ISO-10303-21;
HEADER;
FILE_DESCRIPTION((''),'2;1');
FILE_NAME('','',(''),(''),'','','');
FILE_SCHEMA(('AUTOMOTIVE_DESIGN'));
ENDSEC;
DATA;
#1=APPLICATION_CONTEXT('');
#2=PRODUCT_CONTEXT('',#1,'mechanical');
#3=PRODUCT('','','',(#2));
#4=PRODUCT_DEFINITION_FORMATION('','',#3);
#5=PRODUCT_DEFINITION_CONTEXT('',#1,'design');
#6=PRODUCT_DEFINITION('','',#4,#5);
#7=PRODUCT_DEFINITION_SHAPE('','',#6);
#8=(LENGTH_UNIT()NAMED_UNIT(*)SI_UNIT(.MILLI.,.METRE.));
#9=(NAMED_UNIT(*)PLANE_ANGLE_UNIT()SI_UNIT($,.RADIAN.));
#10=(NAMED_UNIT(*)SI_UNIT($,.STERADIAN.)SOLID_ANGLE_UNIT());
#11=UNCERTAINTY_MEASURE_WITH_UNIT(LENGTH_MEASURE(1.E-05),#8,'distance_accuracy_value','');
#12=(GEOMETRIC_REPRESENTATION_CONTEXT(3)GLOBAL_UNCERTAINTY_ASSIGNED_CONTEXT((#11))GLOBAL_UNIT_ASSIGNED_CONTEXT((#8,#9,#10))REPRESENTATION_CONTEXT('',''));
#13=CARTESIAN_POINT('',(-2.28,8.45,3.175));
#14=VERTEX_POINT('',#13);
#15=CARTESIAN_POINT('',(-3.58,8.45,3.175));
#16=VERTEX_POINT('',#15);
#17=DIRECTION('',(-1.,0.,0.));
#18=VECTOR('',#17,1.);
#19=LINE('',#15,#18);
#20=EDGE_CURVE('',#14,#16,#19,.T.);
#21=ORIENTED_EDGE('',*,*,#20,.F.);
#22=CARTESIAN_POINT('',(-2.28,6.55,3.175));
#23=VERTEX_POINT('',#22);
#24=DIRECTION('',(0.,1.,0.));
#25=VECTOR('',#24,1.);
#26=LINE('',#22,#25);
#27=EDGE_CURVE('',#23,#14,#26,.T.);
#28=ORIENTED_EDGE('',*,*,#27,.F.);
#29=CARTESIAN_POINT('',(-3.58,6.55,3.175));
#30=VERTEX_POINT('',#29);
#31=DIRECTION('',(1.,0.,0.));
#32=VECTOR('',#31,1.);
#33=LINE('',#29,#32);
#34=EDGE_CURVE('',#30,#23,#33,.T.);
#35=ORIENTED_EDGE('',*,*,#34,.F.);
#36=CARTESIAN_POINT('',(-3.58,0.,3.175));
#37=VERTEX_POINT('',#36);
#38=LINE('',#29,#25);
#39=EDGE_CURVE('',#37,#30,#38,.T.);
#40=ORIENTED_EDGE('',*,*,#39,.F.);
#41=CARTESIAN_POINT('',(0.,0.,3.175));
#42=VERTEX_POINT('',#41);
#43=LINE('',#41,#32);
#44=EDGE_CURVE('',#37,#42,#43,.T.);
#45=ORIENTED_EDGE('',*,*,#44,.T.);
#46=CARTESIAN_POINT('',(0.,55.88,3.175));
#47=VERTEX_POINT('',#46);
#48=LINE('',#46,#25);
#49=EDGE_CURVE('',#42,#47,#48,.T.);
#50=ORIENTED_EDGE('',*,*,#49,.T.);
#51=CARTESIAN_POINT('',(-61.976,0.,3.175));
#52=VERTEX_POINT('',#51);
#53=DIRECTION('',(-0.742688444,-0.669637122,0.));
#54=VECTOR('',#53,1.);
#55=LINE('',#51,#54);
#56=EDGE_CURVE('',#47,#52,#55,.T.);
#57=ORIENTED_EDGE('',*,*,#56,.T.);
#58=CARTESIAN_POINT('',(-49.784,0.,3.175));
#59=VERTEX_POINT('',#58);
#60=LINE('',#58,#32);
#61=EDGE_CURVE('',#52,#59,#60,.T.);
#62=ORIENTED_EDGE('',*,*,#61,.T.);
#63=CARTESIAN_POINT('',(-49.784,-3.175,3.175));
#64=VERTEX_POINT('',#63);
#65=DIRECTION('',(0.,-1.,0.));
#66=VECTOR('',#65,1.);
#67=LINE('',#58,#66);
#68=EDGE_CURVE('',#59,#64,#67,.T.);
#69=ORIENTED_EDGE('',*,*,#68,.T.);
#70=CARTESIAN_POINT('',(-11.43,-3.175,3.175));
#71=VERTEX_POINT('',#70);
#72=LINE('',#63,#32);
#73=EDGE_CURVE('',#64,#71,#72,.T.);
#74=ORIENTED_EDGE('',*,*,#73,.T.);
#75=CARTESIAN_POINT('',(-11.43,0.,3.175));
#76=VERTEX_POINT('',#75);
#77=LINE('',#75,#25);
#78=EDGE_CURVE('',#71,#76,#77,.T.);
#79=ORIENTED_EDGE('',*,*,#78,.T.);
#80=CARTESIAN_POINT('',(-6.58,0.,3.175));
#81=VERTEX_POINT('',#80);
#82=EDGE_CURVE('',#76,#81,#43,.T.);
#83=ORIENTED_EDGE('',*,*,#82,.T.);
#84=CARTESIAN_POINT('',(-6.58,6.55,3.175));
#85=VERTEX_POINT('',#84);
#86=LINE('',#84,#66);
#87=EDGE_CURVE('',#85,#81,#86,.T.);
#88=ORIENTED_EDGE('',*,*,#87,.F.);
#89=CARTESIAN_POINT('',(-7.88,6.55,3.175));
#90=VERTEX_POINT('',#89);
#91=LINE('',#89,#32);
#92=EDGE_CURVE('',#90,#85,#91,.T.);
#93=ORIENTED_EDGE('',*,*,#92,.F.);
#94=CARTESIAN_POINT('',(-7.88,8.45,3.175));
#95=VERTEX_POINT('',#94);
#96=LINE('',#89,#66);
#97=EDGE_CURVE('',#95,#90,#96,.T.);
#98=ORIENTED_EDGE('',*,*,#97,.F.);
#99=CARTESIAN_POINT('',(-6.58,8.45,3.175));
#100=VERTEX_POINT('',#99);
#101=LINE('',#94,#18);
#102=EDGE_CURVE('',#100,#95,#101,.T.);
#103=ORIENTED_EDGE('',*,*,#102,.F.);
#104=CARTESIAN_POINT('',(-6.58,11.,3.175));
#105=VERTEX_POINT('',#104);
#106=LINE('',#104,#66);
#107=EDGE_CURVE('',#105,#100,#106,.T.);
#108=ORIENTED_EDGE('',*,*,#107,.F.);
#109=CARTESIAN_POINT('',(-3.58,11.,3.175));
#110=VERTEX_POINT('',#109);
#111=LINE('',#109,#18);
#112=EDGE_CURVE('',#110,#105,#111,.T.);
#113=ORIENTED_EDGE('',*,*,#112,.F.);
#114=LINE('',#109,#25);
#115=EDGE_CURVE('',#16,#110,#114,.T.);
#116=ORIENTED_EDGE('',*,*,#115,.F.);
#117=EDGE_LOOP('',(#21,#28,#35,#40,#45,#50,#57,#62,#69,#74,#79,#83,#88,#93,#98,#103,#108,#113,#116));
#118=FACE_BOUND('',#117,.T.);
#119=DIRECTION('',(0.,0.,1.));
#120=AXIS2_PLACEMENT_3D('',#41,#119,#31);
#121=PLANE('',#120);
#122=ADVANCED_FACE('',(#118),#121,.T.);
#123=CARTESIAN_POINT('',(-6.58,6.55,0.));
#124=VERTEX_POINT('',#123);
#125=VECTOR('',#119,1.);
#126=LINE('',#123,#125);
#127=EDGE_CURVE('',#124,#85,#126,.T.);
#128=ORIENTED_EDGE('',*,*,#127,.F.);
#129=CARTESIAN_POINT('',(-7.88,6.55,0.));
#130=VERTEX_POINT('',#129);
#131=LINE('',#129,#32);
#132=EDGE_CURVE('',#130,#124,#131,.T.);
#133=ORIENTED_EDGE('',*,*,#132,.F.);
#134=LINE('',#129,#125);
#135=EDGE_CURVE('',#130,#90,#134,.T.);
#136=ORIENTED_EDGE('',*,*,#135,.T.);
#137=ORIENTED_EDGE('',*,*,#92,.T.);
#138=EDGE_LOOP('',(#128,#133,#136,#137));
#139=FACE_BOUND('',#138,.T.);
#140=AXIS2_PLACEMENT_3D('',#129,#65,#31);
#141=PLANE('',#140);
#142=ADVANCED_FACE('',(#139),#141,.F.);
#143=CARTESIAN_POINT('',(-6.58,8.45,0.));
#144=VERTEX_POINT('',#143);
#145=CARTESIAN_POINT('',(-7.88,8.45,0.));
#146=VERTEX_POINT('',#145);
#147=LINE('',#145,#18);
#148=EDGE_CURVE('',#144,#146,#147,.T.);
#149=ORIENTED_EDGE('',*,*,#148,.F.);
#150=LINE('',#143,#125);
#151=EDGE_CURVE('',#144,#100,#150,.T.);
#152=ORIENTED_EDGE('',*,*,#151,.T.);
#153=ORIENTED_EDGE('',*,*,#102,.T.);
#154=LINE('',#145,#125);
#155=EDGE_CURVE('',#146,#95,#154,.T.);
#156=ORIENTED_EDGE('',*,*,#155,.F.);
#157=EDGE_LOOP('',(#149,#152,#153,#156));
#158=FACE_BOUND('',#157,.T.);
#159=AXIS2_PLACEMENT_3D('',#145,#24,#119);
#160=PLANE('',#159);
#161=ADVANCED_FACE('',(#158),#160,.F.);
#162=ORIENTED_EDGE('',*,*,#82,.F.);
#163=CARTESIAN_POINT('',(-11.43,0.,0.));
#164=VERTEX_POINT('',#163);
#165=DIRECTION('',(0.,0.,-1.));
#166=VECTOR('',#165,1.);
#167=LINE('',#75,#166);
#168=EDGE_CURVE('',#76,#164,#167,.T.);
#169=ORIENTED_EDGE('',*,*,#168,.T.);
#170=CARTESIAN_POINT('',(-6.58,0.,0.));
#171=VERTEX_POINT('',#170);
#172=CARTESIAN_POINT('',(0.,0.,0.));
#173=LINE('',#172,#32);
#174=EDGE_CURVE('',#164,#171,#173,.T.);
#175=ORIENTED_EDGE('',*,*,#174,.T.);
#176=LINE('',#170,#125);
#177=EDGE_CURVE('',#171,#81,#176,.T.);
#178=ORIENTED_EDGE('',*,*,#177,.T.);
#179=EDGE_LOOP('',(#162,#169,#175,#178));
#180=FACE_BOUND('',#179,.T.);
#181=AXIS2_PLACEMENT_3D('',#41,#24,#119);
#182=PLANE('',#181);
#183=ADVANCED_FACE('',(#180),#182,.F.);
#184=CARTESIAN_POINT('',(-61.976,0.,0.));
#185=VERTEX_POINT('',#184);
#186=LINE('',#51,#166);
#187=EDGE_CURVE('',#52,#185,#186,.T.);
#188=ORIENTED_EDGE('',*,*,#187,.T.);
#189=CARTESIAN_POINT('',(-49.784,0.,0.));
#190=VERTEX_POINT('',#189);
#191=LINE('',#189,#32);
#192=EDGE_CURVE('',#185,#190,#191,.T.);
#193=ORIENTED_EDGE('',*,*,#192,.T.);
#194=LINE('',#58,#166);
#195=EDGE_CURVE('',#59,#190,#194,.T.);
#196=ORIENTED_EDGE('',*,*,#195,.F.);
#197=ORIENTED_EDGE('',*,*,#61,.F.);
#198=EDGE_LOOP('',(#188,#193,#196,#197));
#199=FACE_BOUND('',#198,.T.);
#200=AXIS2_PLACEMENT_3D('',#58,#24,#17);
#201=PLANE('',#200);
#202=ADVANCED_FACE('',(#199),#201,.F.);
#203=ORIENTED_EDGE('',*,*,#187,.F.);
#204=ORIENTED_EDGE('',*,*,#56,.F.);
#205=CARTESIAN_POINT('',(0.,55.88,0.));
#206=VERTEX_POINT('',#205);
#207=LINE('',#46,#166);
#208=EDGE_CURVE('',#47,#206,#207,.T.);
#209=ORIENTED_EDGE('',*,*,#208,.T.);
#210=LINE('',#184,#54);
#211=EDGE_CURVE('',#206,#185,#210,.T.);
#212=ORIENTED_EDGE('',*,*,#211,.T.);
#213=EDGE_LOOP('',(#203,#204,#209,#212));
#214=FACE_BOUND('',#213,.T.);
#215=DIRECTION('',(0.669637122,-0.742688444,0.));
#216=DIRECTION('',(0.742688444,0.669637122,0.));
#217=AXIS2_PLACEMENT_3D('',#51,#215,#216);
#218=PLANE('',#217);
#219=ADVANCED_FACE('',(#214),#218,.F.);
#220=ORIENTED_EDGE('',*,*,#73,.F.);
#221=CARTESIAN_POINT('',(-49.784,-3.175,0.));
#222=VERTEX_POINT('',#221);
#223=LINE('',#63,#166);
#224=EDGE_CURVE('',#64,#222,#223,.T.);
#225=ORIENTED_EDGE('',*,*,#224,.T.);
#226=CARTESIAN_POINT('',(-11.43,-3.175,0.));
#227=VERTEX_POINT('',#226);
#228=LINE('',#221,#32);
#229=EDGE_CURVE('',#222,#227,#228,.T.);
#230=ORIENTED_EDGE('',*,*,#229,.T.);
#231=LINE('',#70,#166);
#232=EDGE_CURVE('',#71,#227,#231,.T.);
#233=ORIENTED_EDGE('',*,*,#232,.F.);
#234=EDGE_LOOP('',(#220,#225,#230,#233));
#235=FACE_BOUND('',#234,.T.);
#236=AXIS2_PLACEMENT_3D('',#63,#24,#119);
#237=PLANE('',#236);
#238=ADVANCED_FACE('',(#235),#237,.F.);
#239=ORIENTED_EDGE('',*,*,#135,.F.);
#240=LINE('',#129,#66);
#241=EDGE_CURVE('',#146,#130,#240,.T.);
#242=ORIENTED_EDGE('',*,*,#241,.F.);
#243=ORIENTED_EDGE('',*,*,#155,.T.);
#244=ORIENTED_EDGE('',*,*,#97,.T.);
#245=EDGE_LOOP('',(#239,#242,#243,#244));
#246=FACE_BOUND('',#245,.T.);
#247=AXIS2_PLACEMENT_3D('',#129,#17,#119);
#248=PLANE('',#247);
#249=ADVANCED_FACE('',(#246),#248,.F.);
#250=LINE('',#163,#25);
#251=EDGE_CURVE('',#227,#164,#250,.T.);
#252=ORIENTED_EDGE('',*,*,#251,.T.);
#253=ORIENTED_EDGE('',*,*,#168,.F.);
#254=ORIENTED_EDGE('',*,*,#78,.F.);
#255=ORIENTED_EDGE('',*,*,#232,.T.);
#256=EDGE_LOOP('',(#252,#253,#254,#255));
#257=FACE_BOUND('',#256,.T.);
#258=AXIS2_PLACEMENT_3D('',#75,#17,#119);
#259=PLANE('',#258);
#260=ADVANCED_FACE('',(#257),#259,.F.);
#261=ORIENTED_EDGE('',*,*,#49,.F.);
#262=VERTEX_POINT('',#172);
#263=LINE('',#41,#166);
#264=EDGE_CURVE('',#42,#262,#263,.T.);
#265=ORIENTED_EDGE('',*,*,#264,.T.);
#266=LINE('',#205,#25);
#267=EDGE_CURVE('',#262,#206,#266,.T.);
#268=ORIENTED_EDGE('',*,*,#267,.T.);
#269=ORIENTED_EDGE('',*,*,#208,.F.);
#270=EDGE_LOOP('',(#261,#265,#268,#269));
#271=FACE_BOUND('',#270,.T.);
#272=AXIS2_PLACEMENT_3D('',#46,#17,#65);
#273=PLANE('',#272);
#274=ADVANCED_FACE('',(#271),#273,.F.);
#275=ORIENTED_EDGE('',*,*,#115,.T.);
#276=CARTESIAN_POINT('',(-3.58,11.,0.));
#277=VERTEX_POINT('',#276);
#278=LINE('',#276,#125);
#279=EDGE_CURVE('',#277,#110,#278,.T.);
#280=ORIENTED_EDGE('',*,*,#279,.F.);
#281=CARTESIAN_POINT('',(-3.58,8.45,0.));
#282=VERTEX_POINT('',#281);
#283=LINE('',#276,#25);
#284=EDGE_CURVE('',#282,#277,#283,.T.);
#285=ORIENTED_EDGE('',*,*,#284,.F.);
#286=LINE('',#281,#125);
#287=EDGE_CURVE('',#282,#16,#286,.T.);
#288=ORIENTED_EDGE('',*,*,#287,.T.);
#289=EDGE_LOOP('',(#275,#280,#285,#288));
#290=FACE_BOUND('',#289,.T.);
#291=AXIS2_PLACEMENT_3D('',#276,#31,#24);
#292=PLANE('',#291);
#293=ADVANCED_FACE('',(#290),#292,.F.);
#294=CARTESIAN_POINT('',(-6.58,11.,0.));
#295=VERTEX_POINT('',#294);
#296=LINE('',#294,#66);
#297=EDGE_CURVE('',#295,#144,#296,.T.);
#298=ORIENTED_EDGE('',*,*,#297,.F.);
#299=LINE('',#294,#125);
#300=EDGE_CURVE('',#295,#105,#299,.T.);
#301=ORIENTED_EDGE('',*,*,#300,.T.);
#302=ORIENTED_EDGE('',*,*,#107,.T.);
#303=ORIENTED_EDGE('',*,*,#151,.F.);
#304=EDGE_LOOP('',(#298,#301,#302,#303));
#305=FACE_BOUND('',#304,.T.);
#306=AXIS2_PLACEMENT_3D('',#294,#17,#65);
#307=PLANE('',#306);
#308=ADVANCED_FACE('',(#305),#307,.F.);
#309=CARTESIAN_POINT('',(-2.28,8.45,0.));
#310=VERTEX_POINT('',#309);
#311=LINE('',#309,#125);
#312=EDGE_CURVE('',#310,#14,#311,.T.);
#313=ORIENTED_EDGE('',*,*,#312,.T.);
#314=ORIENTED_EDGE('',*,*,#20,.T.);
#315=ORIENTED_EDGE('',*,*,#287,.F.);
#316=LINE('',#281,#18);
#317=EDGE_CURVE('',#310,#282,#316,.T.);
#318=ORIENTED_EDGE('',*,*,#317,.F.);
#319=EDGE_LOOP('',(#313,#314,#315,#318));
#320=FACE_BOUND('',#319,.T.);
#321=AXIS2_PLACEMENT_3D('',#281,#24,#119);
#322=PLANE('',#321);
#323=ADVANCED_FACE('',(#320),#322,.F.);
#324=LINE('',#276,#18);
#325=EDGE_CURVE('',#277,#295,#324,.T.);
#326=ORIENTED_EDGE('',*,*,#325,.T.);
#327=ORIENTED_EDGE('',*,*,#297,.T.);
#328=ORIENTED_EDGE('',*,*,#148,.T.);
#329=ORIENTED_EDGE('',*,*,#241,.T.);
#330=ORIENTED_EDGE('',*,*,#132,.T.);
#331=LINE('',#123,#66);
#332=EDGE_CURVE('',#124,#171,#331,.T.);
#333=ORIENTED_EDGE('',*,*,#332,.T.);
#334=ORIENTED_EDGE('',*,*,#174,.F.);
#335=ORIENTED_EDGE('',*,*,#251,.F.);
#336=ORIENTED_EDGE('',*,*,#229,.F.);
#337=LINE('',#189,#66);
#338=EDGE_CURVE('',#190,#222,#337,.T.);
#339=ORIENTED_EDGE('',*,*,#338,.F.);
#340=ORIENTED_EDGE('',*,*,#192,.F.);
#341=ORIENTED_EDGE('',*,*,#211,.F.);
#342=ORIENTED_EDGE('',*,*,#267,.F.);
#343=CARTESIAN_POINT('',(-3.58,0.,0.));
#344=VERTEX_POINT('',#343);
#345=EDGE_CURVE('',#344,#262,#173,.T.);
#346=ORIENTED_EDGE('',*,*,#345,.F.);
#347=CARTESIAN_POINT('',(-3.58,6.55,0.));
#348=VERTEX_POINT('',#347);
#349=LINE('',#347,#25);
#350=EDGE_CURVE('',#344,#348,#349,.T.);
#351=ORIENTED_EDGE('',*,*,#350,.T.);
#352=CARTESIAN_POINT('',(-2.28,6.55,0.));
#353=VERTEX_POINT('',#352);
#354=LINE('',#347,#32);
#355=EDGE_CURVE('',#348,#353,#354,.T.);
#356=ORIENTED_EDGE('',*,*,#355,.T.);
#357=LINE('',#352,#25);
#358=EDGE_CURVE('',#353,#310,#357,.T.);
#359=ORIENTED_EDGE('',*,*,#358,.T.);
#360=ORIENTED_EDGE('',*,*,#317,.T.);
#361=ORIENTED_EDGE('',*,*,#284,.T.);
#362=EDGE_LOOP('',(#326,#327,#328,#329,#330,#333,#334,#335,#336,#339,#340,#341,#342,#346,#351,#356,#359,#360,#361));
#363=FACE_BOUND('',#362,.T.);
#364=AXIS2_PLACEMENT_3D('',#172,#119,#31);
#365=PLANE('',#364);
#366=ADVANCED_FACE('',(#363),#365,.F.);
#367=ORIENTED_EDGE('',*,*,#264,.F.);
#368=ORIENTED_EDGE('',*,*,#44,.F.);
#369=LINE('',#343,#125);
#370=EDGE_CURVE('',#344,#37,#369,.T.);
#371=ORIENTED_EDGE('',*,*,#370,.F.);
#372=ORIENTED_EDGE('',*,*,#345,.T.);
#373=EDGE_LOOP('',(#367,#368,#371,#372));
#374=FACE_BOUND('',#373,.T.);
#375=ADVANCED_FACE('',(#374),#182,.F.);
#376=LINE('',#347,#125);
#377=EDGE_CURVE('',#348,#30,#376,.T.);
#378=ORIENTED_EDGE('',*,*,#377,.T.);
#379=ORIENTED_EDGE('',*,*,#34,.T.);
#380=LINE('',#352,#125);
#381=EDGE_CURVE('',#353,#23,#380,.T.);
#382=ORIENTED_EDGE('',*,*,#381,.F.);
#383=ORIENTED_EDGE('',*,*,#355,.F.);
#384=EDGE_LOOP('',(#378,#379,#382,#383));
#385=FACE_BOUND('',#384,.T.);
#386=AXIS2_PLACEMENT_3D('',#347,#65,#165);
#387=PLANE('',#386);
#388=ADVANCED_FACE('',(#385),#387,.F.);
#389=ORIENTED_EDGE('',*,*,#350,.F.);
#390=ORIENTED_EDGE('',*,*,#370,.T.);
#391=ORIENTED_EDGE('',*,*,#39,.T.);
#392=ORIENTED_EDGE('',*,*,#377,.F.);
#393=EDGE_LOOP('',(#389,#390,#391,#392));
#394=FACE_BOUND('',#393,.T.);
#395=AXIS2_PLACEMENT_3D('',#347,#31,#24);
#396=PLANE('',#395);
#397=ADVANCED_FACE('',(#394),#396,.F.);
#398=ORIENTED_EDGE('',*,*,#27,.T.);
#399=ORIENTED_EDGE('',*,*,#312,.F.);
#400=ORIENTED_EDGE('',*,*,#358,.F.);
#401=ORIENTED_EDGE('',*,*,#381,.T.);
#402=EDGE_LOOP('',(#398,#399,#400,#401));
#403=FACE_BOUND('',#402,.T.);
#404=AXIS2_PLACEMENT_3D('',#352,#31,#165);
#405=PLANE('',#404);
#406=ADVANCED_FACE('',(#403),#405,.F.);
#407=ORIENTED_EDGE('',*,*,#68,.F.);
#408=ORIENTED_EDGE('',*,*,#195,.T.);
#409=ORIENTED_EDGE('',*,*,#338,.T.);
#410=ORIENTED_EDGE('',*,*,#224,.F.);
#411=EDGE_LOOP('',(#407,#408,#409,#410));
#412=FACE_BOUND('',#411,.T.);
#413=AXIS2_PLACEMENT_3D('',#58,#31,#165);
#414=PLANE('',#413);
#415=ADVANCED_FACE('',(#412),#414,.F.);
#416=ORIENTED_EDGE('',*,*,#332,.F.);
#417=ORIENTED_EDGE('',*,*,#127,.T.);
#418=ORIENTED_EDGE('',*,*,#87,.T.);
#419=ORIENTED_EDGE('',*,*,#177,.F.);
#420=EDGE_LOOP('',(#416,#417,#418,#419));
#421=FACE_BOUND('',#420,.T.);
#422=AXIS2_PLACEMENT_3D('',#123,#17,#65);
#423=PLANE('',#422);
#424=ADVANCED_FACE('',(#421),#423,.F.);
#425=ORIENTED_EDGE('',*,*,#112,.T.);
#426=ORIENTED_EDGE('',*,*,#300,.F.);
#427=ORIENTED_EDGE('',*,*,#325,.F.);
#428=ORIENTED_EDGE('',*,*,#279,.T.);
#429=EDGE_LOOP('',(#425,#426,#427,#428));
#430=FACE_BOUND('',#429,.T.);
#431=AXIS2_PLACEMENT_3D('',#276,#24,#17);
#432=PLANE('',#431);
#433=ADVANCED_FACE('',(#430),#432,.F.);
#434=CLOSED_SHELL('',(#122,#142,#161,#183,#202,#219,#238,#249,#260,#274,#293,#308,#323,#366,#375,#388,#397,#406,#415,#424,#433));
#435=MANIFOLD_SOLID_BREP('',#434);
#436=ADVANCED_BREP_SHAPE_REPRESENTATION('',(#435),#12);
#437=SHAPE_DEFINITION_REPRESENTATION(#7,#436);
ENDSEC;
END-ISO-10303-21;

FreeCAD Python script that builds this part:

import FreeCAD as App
import Part
import Sketcher
Q = App.Units.Quantity


def add_polygon(sketch, points):
    """Adds a closed chain of lines whose ends are joined by coincident constraints."""
    first, n = sketch.GeometryCount, len(points)
    for a, b in zip(points, points[1:] + points[:1]):
        sketch.addGeometry(Part.LineSegment(App.Vector(*a, 0), App.Vector(*b, 0)), False)
    for i in range(n):
        sketch.addConstraint(Sketcher.Constraint("Coincident", first + i, 2, first + (i + 1) % n, 1))

doc = App.newDocument("Part")
body = doc.addObject("PartDesign::Body", "Body")

sketch1 = body.newObject("Sketcher::SketchObject", "Sketch")
sketch1.AttachmentSupport = (doc.getObject("XY_Plane"), [""])
sketch1.MapMode = "FlatFace"
add_polygon(sketch1, [(0, 55.88), (-61.976, 0), (-49.784, 0), (-49.784, -3.175), (-11.43, -3.175), (-11.43, 0), (0, 0)])
sketch1.addConstraint([
    Sketcher.Constraint("Horizontal", 1),
    Sketcher.Constraint("Vertical", 2),
    Sketcher.Constraint("Horizontal", 3),
    Sketcher.Constraint("Vertical", 4),
    Sketcher.Constraint("Horizontal", 5),
    Sketcher.Constraint("Vertical", 6),
    Sketcher.Constraint("Coincident", 5, 2, -1, 1),
    Sketcher.Constraint("PointOnObject", 0, 2, -1),
    Sketcher.Constraint("DistanceY", 6, 1, 6, 2, Q("2.2 in")),
    Sketcher.Constraint("DistanceX", 1, 1, 1, 2, Q("0.48 in")),
    Sketcher.Constraint("DistanceX", 3, 1, 3, 2, Q("1.51 in")),
    Sketcher.Constraint("DistanceX", 5, 1, 5, 2, Q("0.45 in")),
    Sketcher.Constraint("DistanceY", 2, 2, 2, 1, Q("0.125 in")),
])
pad1 = body.newObject("PartDesign::Pad", "Pad")
pad1.Profile = sketch1
pad1.Length = Q("0.125 in")

sketch2 = body.newObject("Sketcher::SketchObject", "Sketch001")
sketch2.AttachmentSupport = (doc.getObject("XY_Plane"), [""])
sketch2.MapMode = "FlatFace"
sketch2.AttachmentOffset = App.Placement(App.Vector(0, 0, 0.125 * 25.4), App.Rotation())
add_polygon(sketch2, [(-3.58, 8.45), (-3.58, 11), (-6.58, 11), (-6.58, 8.45), (-7.88, 8.45), (-7.88, 6.55), (-6.58, 6.55), (-6.58, 0), (-3.58, 0), (-3.58, 6.55), (-2.28, 6.55), (-2.28, 8.45)])
sketch2.addConstraint([
    Sketcher.Constraint("Vertical", 0),
    Sketcher.Constraint("Horizontal", 1),
    Sketcher.Constraint("Vertical", 2),
    Sketcher.Constraint("Horizontal", 3),
    Sketcher.Constraint("Vertical", 4),
    Sketcher.Constraint("Horizontal", 5),
    Sketcher.Constraint("Vertical", 6),
    Sketcher.Constraint("Horizontal", 7),
    Sketcher.Constraint("Vertical", 8),
    Sketcher.Constraint("Horizontal", 9),
    Sketcher.Constraint("Vertical", 10),
    Sketcher.Constraint("Horizontal", 11),
    Sketcher.Constraint("PointOnObject", 6, 2, -1),
    Sketcher.Constraint("Horizontal", 5, 2, 8, 2),
    Sketcher.Constraint("Horizontal", 3, 2, 10, 2),
    Sketcher.Constraint("Vertical", 2, 2, 5, 2),
    Sketcher.Constraint("Vertical", 0, 2, 7, 2),
    Sketcher.Constraint("Equal", 5, 9),
    Sketcher.Constraint("DistanceX", 1, 2, 1, 1, Q("3 mm")),
    Sketcher.Constraint("DistanceX", 3, 2, 3, 1, Q("1.3 mm")),
    Sketcher.Constraint("DistanceY", 0, 1, 0, 2, Q("2.55 mm")),
    Sketcher.Constraint("DistanceY", 4, 2, 4, 1, Q("1.9 mm")),
    Sketcher.Constraint("DistanceY", 6, 2, 6, 1, Q("6.55 mm")),
    Sketcher.Constraint("DistanceX", 0, 2, -1, 1, Q("3.58 mm")),
])
pocket1 = body.newObject("PartDesign::Pocket", "Pocket")
pocket1.Profile = sketch2
pocket1.Type = "ThroughAll"

doc.recompute()
